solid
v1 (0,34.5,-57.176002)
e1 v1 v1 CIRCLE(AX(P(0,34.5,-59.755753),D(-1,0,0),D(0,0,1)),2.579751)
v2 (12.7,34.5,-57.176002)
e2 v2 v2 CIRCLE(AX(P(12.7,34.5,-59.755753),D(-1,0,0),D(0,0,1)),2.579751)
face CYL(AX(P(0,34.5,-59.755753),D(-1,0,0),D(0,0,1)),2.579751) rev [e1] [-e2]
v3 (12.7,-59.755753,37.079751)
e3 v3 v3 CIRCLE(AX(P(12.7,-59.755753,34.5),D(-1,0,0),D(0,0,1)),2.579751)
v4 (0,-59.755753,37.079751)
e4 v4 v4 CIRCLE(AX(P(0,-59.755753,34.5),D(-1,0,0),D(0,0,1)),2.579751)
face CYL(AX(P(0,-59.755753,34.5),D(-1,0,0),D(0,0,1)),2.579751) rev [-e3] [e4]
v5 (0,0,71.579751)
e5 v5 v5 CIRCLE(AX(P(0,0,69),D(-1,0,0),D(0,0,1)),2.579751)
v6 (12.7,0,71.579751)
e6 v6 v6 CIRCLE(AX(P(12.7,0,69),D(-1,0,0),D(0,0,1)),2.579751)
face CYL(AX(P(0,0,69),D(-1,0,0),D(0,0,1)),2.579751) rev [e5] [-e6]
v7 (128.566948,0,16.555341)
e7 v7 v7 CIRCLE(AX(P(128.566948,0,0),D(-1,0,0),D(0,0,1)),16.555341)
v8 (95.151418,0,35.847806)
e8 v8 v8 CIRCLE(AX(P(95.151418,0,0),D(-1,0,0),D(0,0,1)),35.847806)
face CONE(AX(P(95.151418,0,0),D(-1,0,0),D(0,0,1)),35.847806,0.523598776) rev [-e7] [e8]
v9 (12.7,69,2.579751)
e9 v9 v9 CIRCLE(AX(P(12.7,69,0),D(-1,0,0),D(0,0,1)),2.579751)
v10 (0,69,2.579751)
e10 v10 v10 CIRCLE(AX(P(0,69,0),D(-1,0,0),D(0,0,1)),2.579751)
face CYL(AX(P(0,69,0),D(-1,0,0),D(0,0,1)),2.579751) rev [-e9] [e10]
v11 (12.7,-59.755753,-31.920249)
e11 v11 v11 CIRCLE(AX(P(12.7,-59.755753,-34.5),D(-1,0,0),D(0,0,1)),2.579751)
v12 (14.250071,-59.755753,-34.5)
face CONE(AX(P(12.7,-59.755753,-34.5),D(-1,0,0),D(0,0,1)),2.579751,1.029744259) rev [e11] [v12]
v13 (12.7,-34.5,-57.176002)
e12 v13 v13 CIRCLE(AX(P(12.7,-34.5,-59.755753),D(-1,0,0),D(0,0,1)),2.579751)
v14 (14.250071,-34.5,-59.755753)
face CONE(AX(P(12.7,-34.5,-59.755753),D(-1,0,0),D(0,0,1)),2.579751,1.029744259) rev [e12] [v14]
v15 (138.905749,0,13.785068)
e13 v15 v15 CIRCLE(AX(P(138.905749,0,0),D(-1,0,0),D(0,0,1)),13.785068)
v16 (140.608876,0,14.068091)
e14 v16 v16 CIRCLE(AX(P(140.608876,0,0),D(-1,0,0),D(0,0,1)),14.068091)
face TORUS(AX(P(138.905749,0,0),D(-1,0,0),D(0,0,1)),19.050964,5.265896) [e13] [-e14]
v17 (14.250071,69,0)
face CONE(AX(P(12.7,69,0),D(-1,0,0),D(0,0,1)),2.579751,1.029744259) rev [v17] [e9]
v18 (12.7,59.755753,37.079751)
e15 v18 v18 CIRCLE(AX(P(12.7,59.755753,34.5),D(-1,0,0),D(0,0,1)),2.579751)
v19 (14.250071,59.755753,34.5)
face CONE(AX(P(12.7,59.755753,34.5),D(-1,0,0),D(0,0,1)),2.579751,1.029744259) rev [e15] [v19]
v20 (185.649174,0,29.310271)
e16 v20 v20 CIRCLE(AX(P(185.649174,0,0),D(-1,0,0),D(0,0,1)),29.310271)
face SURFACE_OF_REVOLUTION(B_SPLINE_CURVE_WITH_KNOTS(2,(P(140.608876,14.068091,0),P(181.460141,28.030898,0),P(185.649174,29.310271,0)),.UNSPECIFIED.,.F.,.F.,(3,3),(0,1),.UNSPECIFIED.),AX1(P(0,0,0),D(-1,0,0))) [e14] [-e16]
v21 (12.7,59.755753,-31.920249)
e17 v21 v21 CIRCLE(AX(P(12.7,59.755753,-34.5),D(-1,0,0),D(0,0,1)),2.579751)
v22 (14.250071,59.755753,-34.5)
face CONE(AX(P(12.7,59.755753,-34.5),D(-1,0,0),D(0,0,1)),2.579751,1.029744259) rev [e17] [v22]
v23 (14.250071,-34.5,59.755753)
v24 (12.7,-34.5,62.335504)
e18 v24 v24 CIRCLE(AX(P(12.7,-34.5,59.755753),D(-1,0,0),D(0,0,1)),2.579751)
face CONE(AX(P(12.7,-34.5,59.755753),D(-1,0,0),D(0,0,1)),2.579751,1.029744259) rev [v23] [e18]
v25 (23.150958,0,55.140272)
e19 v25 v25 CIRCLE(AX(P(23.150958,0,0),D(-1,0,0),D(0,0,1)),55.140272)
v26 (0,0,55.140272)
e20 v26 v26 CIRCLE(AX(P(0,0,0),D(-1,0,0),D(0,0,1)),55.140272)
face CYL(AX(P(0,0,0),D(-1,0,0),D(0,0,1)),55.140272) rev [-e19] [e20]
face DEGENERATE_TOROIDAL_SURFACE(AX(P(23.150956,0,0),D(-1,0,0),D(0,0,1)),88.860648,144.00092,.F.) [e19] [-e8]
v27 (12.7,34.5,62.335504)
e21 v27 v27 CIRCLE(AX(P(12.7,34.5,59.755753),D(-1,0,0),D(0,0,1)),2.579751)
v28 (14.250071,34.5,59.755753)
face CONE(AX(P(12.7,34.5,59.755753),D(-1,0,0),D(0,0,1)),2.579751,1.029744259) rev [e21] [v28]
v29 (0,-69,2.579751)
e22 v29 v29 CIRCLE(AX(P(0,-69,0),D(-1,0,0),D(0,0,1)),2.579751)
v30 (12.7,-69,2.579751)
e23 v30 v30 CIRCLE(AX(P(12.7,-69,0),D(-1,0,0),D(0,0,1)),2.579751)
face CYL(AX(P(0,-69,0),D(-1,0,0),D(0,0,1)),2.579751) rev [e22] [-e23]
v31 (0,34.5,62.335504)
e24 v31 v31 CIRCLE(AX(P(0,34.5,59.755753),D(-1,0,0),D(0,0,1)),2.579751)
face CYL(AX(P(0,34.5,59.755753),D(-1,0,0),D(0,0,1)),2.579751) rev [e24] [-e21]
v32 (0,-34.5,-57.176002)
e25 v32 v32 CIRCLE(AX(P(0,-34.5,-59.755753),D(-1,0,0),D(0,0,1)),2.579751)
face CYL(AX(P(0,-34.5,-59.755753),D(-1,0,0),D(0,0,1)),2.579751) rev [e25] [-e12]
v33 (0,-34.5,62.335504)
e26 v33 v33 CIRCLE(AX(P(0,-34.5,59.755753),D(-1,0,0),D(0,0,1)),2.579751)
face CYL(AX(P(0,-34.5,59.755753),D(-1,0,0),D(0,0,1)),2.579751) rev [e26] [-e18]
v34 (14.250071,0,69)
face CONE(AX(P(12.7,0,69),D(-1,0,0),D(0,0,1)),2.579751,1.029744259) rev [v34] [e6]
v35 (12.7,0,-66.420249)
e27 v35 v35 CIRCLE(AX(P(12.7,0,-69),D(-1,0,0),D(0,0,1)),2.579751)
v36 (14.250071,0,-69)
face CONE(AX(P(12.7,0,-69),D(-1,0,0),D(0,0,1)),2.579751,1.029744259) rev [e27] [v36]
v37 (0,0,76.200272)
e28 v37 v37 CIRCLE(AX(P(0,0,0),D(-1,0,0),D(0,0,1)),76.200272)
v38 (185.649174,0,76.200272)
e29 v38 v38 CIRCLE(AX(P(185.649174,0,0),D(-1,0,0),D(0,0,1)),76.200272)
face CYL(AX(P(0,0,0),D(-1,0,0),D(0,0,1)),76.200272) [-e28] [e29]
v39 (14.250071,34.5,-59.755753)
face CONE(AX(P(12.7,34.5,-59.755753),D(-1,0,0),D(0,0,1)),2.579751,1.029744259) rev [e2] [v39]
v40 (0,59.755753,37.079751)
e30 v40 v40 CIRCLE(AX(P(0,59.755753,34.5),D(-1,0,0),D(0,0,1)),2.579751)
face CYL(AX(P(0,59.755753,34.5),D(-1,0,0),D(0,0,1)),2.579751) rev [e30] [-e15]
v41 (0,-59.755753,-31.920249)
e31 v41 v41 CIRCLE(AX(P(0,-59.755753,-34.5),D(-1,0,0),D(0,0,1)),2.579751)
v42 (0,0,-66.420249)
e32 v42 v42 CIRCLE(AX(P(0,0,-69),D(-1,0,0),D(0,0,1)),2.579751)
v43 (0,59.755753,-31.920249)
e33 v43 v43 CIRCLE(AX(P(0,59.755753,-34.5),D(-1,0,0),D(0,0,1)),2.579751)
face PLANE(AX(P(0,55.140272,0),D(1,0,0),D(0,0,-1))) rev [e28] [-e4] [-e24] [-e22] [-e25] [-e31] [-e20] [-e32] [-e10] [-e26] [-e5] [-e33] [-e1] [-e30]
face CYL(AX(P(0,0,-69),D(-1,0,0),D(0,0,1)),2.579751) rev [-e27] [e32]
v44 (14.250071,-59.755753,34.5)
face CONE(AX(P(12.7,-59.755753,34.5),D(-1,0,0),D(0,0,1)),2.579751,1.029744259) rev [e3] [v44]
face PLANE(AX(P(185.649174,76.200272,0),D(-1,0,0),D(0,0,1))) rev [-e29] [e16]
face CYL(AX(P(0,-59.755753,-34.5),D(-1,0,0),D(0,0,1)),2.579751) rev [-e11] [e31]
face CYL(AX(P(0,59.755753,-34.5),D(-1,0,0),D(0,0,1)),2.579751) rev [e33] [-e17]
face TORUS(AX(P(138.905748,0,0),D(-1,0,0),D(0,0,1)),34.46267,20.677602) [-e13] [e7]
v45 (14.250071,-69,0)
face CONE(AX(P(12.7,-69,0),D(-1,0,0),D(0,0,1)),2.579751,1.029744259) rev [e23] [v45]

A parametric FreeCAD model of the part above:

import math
import FreeCAD as App
import Part
import Sketcher
Q = App.Units.Quantity

doc = App.newDocument("Part")
body = doc.addObject("PartDesign::Body", "Body")

# Sketch on XY plane
sketch1 = body.newObject("Sketcher::SketchObject", "Sketch")
sketch1.AttachmentSupport = (doc.getObject("XY_Plane"), [""])
sketch1.MapMode = "FlatFace"
sketch1.addGeometry([
    Part.LineSegment(App.Vector(0, 55.140272, 0), App.Vector(23.150958, 55.140272, 0)),  # 0
    Part.ArcOfCircle(Part.Circle(App.Vector(23.150956, -88.860648, 0), App.Vector(0, 0, 1), 144.00092), math.radians(59.999999), math.radians(89.999999)),  # 1
    Part.LineSegment(App.Vector(95.151418, 35.847806, 0), App.Vector(128.566948, 16.555341, 0)),  # 2
    Part.ArcOfCircle(Part.Circle(App.Vector(138.905748, 34.46267, 0), App.Vector(0, 0, 1), 20.677602), math.radians(-119.999998), math.radians(-89.999998)),  # 3
    Part.ArcOfCircle(Part.Circle(App.Vector(138.905749, 19.050964, 0), App.Vector(0, 0, 1), 5.265896), math.radians(-90), math.radians(-71.129768)),  # 4
    Part.BSplineCurve([App.Vector(140.608876, 14.068091, 0), App.Vector(181.460141, 28.030898, 0), App.Vector(185.649174, 29.310271, 0)], [3, 3], [0, 1], False, 2, [1, 1, 1], False),  # 5
    Part.LineSegment(App.Vector(185.649174, 29.310271, 0), App.Vector(185.649174, 76.200272, 0)),  # 6
    Part.LineSegment(App.Vector(185.649174, 76.200272, 0), App.Vector(0, 76.200272, 0)),  # 7
    Part.LineSegment(App.Vector(0, 76.200272, 0), App.Vector(0, 55.140272, 0)),  # 8
], False)
sketch1.addConstraint([
    Sketcher.Constraint("Block", 5),
    Sketcher.Constraint("Tangent", 0, 2, 1, 2),
    Sketcher.Constraint("Tangent", 1, 1, 2, 1),
    Sketcher.Constraint("Tangent", 2, 2, 3, 1),
    Sketcher.Constraint("Tangent", 3, 2, 4, 1),
    Sketcher.Constraint("Coincident", 4, 2, 5, 1),
    Sketcher.Constraint("Coincident", 5, 2, 6, 1),
    Sketcher.Constraint("Coincident", 6, 2, 7, 1),
    Sketcher.Constraint("Coincident", 7, 2, 8, 1),
    Sketcher.Constraint("Coincident", 8, 2, 0, 1),
    Sketcher.Constraint("Horizontal", 0),
    Sketcher.Constraint("Vertical", 6),
    Sketcher.Constraint("Horizontal", 7),
    Sketcher.Constraint("Vertical", 8),
    Sketcher.Constraint("PointOnObject", 7, 2, -2),
    Sketcher.Constraint("Vertical", 3, 3, 4, 3),
    Sketcher.Constraint("Angle", 2, Q("-30 deg")),
    Sketcher.Constraint("Radius", 3, Q("20.677602 mm")),
    Sketcher.Constraint("Radius", 1, Q("144.00092 mm")),
    Sketcher.Constraint("DistanceY", 6, 1, 6, 2, Q("46.890001 mm")),
    Sketcher.Constraint("DistanceY", 8, 2, 8, 1, Q("21.06 mm")),
    Sketcher.Constraint("Radius", 4, Q("5.265896 mm")),
    Sketcher.Constraint("Distance", 2, Q("38.58493 mm")),
])
revolution = body.newObject("PartDesign::Revolution", "Revolution")
revolution.Profile = sketch1
revolution.ReferenceAxis = (sketch1, ["H_Axis"])
revolution.Angle = 360

# Sketch on XZ plane
sketch2 = body.newObject("Sketcher::SketchObject", "Sketch001")
sketch2.AttachmentSupport = (doc.getObject("XZ_Plane"), [""])
sketch2.MapMode = "FlatFace"
sketch2.addGeometry([
    Part.LineSegment(App.Vector(14.250071, 69, 0), App.Vector(0, 69, 0)),
    Part.LineSegment(App.Vector(0, 69, 0), App.Vector(0, 71.579751, 0)),
    Part.LineSegment(App.Vector(0, 71.579751, 0), App.Vector(12.7, 71.579751, 0)),
    Part.LineSegment(App.Vector(12.7, 71.579751, 0), App.Vector(14.250071, 69, 0)),
], False)
sketch2.addGeometry(Part.LineSegment(App.Vector(0, 69, 0), App.Vector(14.250071, 69, 0)), True)  # axis
sketch2.addConstraint([
    Sketcher.Constraint("Coincident", 0, 2, 1, 1),
    Sketcher.Constraint("Coincident", 1, 2, 2, 1),
    Sketcher.Constraint("Coincident", 2, 2, 3, 1),
    Sketcher.Constraint("Coincident", 3, 2, 0, 1),
    Sketcher.Constraint("Horizontal", 0),
    Sketcher.Constraint("Vertical", 1),
    Sketcher.Constraint("Horizontal", 2),
    Sketcher.Constraint("Horizontal", 4),
    Sketcher.Constraint("Coincident", 4, 1, 0, 2),
    Sketcher.Constraint("PointOnObject", 0, 2, -2),
    Sketcher.Constraint("Equal", 0, 4),
    Sketcher.Constraint("DistanceX", 2, 1, 2, 2, Q("0.5 in")),
    Sketcher.Constraint("Angle", 3, Q("-59 deg")),
    Sketcher.Constraint("DistanceX", 0, 2, 0, 1, Q("14.250071 mm")),
    Sketcher.Constraint("DistanceY", -1, 1, 0, 2, Q("69 mm")),
])
groove = body.newObject("PartDesign::Groove", "Groove")
groove.Profile = sketch2
groove.ReferenceAxis = (sketch2, ["Axis0"])
groove.Angle = 360
doc.recompute()

polarpattern = body.newObject("PartDesign::PolarPattern", "PolarPattern")
polarpattern.Originals = [groove]
polarpattern.Axis = (doc.getObject("X_Axis"), [""])
polarpattern.Angle = 360
polarpattern.Occurrences = 12
body.Tip = polarpattern

doc.recompute()
